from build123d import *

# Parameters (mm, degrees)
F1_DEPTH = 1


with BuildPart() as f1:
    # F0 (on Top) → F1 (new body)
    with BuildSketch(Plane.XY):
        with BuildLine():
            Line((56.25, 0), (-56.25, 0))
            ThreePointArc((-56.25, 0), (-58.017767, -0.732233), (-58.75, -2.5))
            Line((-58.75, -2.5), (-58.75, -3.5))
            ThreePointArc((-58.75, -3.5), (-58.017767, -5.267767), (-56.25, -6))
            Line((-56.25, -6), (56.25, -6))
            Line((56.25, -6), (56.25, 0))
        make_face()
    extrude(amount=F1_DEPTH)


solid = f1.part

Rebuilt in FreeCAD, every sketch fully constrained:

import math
import FreeCAD as App
import Part
import Sketcher

V = App.Vector

doc = App.newDocument("Part")
body = doc.addObject("PartDesign::Body", "Body")

sketch1 = body.newObject("Sketcher::SketchObject", "Sketch")
sketch1.AttachmentSupport = (doc.getObject("XY_Plane"), [""])
sketch1.MapMode = "FlatFace"
sketch1.addGeometry(Part.LineSegment(V(56.2, 0, 0), V(-56.2, 0, 0)), False)
sketch1.addGeometry(Part.ArcOfCircle(Part.Circle(V(-56.3, -2.5, 0), V(0, 0, 1), 2.5), math.radians(90), math.radians(180)), False)
sketch1.addGeometry(Part.LineSegment(V(-58.8, -2.5, 0), V(-58.8, -3.5, 0)), False)
sketch1.addGeometry(Part.ArcOfCircle(Part.Circle(V(-56.3, -3.5, 0), V(0, 0, 1), 2.5), math.radians(180), math.radians(270)), False)
sketch1.addGeometry(Part.LineSegment(V(-56.2, -6, 0), V(56.2, -6, 0)), False)
sketch1.addGeometry(Part.LineSegment(V(56.2, -6, 0), V(56.2, 0, 0)), False)
sketch1.addConstraint(Sketcher.Constraint("Tangent", 0, 2, 1, 1))
sketch1.addConstraint(Sketcher.Constraint("Tangent", 1, 2, 2, 1))
sketch1.addConstraint(Sketcher.Constraint("Tangent", 2, 2, 3, 1))
sketch1.addConstraint(Sketcher.Constraint("Tangent", 3, 2, 4, 1))
sketch1.addConstraint(Sketcher.Constraint("Coincident", 4, 2, 5, 1))
sketch1.addConstraint(Sketcher.Constraint("Coincident", 5, 2, 0, 1))
sketch1.addConstraint(Sketcher.Constraint("Horizontal", 0))
sketch1.addConstraint(Sketcher.Constraint("Vertical", 2))
sketch1.addConstraint(Sketcher.Constraint("Horizontal", 4))
sketch1.addConstraint(Sketcher.Constraint("Vertical", 5))
sketch1.addConstraint(Sketcher.Constraint("Equal", 1, 3))
sketch1.addConstraint(Sketcher.Constraint("Symmetric", 0, 2, 5, 2, -1, 1))
sketch1.addConstraint(Sketcher.Constraint("Radius", 1, 2.5))
sketch1.addConstraint(Sketcher.Constraint("DistanceY", 2, 2, 2, 1, 1.0))
sketch1.addConstraint(Sketcher.Constraint("DistanceX", 0, 2, 0, 1, 112.5))
pad1 = body.newObject("PartDesign::Pad", "Pad")
pad1.Profile = sketch1
pad1.Length = 1

doc.recompute()
